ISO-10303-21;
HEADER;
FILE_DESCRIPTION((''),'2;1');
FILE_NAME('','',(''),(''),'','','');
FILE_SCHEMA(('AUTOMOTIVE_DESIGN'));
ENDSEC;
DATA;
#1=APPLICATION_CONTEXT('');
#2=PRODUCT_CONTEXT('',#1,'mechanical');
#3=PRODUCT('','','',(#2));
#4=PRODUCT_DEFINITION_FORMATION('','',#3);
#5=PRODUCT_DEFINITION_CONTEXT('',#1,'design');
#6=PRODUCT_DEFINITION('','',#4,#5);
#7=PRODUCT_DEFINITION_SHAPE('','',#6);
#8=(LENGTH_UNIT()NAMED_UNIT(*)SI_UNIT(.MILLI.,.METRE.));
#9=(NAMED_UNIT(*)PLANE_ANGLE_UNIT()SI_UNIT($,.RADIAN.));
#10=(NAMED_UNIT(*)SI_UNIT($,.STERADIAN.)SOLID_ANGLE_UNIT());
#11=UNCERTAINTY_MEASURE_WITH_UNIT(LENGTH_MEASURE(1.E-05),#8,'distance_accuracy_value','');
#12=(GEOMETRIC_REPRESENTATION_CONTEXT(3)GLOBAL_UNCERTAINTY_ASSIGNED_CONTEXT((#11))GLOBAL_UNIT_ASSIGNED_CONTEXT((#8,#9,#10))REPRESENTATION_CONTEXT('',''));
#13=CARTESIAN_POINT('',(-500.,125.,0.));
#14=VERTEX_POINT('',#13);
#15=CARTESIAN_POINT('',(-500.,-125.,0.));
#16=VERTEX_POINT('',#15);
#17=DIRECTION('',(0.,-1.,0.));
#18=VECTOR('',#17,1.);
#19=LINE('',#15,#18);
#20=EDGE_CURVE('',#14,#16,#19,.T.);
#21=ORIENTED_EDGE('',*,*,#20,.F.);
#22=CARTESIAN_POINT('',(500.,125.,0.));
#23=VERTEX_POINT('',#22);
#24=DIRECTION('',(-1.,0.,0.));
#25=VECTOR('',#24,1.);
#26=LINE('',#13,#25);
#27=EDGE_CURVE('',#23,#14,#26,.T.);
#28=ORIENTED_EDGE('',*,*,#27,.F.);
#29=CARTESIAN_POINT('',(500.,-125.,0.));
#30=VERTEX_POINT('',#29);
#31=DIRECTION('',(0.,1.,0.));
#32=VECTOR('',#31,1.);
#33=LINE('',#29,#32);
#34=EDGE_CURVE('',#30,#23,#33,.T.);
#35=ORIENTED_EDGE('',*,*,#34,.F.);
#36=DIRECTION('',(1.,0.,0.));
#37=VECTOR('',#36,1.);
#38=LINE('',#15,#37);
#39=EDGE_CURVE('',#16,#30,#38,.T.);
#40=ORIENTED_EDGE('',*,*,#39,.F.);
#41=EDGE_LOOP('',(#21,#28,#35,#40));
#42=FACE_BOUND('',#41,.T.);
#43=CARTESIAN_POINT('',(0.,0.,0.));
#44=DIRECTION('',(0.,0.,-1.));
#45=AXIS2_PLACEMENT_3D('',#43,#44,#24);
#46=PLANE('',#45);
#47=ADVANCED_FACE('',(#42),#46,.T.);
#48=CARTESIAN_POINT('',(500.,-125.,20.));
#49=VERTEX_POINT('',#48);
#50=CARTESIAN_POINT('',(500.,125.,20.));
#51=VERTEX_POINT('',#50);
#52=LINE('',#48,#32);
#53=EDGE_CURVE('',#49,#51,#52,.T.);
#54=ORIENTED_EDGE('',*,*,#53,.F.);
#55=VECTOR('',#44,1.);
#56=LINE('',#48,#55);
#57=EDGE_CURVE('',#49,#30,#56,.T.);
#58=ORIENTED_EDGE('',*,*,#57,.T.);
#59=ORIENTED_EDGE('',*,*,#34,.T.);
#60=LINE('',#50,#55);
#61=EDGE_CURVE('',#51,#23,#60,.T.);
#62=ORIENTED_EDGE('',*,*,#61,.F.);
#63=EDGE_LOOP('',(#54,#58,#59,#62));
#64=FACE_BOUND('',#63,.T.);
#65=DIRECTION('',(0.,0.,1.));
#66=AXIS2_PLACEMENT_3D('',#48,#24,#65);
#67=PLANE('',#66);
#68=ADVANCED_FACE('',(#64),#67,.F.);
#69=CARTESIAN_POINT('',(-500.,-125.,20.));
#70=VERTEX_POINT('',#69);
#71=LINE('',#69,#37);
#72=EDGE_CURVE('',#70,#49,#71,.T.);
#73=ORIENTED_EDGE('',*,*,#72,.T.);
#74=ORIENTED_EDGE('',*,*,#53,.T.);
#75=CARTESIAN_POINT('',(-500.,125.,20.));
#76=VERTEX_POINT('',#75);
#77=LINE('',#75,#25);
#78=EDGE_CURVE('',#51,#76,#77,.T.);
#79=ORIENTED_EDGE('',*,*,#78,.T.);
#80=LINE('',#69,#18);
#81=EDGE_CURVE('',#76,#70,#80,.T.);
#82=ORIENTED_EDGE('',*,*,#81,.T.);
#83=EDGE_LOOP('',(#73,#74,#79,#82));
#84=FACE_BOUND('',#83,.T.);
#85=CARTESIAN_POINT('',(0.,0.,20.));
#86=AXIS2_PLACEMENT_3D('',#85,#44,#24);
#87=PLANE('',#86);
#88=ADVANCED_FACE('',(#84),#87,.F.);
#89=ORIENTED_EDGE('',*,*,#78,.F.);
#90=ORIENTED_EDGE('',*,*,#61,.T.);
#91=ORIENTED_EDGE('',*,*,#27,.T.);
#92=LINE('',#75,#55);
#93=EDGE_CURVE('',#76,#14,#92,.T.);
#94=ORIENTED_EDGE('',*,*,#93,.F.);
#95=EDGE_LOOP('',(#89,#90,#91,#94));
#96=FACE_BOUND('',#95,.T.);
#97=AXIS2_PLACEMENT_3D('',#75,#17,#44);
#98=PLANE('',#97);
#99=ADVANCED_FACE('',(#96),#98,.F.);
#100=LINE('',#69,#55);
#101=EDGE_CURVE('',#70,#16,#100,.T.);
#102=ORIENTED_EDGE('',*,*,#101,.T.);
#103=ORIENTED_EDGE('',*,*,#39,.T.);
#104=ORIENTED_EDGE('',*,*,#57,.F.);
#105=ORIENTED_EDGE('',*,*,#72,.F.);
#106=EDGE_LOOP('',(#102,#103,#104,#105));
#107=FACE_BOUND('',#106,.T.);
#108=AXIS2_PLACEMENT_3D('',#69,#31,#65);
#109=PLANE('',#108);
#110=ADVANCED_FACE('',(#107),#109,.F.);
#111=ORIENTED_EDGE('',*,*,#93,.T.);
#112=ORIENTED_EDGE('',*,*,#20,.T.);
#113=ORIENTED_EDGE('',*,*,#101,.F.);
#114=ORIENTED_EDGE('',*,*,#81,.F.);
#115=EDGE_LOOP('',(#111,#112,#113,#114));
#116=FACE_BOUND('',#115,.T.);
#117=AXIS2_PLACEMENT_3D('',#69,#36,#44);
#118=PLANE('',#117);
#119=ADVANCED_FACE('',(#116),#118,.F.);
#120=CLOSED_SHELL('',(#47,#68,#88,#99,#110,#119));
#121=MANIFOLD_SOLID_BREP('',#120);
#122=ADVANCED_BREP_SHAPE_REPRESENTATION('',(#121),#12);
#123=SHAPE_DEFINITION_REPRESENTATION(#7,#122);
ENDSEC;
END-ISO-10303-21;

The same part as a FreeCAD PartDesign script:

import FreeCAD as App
import Part
import Sketcher

V = App.Vector
Q = App.Units.Quantity


def add_polygon(sketch, points):
    """Adds a closed chain of lines whose ends are joined by coincident constraints."""
    first, n = sketch.GeometryCount, len(points)
    for a, b in zip(points, points[1:] + points[:1]):
        sketch.addGeometry(Part.LineSegment(App.Vector(*a, 0), App.Vector(*b, 0)), False)
    for i in range(n):
        sketch.addConstraint(Sketcher.Constraint("Coincident", first + i, 2, first + (i + 1) % n, 1))

doc = App.newDocument("Part")
body = doc.addObject("PartDesign::Body", "Body")

# Sketch on XY plane
sketch1 = body.newObject("Sketcher::SketchObject", "Sketch")
sketch1.AttachmentSupport = (doc.getObject("XY_Plane"), [""])
sketch1.MapMode = "FlatFace"
add_polygon(sketch1, [(-500, 125), (-500, -125), (500, -125), (500, 125)])  # lines 0-3
sketch1.addConstraint([
    Sketcher.Constraint("Vertical", 0),
    Sketcher.Constraint("Horizontal", 1),
    Sketcher.Constraint("Vertical", 2),
    Sketcher.Constraint("Horizontal", 3),
    Sketcher.Constraint("Symmetric", 0, 2, 2, 2, -1, 1),
    Sketcher.Constraint("DistanceX", 1, 1, 1, 2, Q("1000 mm")),
    Sketcher.Constraint("DistanceY", 0, 2, 0, 1, Q("250 mm")),
])
pad1 = body.newObject("PartDesign::Pad", "Pad")
pad1.Profile = sketch1
pad1.Length = 20

doc.recompute()
